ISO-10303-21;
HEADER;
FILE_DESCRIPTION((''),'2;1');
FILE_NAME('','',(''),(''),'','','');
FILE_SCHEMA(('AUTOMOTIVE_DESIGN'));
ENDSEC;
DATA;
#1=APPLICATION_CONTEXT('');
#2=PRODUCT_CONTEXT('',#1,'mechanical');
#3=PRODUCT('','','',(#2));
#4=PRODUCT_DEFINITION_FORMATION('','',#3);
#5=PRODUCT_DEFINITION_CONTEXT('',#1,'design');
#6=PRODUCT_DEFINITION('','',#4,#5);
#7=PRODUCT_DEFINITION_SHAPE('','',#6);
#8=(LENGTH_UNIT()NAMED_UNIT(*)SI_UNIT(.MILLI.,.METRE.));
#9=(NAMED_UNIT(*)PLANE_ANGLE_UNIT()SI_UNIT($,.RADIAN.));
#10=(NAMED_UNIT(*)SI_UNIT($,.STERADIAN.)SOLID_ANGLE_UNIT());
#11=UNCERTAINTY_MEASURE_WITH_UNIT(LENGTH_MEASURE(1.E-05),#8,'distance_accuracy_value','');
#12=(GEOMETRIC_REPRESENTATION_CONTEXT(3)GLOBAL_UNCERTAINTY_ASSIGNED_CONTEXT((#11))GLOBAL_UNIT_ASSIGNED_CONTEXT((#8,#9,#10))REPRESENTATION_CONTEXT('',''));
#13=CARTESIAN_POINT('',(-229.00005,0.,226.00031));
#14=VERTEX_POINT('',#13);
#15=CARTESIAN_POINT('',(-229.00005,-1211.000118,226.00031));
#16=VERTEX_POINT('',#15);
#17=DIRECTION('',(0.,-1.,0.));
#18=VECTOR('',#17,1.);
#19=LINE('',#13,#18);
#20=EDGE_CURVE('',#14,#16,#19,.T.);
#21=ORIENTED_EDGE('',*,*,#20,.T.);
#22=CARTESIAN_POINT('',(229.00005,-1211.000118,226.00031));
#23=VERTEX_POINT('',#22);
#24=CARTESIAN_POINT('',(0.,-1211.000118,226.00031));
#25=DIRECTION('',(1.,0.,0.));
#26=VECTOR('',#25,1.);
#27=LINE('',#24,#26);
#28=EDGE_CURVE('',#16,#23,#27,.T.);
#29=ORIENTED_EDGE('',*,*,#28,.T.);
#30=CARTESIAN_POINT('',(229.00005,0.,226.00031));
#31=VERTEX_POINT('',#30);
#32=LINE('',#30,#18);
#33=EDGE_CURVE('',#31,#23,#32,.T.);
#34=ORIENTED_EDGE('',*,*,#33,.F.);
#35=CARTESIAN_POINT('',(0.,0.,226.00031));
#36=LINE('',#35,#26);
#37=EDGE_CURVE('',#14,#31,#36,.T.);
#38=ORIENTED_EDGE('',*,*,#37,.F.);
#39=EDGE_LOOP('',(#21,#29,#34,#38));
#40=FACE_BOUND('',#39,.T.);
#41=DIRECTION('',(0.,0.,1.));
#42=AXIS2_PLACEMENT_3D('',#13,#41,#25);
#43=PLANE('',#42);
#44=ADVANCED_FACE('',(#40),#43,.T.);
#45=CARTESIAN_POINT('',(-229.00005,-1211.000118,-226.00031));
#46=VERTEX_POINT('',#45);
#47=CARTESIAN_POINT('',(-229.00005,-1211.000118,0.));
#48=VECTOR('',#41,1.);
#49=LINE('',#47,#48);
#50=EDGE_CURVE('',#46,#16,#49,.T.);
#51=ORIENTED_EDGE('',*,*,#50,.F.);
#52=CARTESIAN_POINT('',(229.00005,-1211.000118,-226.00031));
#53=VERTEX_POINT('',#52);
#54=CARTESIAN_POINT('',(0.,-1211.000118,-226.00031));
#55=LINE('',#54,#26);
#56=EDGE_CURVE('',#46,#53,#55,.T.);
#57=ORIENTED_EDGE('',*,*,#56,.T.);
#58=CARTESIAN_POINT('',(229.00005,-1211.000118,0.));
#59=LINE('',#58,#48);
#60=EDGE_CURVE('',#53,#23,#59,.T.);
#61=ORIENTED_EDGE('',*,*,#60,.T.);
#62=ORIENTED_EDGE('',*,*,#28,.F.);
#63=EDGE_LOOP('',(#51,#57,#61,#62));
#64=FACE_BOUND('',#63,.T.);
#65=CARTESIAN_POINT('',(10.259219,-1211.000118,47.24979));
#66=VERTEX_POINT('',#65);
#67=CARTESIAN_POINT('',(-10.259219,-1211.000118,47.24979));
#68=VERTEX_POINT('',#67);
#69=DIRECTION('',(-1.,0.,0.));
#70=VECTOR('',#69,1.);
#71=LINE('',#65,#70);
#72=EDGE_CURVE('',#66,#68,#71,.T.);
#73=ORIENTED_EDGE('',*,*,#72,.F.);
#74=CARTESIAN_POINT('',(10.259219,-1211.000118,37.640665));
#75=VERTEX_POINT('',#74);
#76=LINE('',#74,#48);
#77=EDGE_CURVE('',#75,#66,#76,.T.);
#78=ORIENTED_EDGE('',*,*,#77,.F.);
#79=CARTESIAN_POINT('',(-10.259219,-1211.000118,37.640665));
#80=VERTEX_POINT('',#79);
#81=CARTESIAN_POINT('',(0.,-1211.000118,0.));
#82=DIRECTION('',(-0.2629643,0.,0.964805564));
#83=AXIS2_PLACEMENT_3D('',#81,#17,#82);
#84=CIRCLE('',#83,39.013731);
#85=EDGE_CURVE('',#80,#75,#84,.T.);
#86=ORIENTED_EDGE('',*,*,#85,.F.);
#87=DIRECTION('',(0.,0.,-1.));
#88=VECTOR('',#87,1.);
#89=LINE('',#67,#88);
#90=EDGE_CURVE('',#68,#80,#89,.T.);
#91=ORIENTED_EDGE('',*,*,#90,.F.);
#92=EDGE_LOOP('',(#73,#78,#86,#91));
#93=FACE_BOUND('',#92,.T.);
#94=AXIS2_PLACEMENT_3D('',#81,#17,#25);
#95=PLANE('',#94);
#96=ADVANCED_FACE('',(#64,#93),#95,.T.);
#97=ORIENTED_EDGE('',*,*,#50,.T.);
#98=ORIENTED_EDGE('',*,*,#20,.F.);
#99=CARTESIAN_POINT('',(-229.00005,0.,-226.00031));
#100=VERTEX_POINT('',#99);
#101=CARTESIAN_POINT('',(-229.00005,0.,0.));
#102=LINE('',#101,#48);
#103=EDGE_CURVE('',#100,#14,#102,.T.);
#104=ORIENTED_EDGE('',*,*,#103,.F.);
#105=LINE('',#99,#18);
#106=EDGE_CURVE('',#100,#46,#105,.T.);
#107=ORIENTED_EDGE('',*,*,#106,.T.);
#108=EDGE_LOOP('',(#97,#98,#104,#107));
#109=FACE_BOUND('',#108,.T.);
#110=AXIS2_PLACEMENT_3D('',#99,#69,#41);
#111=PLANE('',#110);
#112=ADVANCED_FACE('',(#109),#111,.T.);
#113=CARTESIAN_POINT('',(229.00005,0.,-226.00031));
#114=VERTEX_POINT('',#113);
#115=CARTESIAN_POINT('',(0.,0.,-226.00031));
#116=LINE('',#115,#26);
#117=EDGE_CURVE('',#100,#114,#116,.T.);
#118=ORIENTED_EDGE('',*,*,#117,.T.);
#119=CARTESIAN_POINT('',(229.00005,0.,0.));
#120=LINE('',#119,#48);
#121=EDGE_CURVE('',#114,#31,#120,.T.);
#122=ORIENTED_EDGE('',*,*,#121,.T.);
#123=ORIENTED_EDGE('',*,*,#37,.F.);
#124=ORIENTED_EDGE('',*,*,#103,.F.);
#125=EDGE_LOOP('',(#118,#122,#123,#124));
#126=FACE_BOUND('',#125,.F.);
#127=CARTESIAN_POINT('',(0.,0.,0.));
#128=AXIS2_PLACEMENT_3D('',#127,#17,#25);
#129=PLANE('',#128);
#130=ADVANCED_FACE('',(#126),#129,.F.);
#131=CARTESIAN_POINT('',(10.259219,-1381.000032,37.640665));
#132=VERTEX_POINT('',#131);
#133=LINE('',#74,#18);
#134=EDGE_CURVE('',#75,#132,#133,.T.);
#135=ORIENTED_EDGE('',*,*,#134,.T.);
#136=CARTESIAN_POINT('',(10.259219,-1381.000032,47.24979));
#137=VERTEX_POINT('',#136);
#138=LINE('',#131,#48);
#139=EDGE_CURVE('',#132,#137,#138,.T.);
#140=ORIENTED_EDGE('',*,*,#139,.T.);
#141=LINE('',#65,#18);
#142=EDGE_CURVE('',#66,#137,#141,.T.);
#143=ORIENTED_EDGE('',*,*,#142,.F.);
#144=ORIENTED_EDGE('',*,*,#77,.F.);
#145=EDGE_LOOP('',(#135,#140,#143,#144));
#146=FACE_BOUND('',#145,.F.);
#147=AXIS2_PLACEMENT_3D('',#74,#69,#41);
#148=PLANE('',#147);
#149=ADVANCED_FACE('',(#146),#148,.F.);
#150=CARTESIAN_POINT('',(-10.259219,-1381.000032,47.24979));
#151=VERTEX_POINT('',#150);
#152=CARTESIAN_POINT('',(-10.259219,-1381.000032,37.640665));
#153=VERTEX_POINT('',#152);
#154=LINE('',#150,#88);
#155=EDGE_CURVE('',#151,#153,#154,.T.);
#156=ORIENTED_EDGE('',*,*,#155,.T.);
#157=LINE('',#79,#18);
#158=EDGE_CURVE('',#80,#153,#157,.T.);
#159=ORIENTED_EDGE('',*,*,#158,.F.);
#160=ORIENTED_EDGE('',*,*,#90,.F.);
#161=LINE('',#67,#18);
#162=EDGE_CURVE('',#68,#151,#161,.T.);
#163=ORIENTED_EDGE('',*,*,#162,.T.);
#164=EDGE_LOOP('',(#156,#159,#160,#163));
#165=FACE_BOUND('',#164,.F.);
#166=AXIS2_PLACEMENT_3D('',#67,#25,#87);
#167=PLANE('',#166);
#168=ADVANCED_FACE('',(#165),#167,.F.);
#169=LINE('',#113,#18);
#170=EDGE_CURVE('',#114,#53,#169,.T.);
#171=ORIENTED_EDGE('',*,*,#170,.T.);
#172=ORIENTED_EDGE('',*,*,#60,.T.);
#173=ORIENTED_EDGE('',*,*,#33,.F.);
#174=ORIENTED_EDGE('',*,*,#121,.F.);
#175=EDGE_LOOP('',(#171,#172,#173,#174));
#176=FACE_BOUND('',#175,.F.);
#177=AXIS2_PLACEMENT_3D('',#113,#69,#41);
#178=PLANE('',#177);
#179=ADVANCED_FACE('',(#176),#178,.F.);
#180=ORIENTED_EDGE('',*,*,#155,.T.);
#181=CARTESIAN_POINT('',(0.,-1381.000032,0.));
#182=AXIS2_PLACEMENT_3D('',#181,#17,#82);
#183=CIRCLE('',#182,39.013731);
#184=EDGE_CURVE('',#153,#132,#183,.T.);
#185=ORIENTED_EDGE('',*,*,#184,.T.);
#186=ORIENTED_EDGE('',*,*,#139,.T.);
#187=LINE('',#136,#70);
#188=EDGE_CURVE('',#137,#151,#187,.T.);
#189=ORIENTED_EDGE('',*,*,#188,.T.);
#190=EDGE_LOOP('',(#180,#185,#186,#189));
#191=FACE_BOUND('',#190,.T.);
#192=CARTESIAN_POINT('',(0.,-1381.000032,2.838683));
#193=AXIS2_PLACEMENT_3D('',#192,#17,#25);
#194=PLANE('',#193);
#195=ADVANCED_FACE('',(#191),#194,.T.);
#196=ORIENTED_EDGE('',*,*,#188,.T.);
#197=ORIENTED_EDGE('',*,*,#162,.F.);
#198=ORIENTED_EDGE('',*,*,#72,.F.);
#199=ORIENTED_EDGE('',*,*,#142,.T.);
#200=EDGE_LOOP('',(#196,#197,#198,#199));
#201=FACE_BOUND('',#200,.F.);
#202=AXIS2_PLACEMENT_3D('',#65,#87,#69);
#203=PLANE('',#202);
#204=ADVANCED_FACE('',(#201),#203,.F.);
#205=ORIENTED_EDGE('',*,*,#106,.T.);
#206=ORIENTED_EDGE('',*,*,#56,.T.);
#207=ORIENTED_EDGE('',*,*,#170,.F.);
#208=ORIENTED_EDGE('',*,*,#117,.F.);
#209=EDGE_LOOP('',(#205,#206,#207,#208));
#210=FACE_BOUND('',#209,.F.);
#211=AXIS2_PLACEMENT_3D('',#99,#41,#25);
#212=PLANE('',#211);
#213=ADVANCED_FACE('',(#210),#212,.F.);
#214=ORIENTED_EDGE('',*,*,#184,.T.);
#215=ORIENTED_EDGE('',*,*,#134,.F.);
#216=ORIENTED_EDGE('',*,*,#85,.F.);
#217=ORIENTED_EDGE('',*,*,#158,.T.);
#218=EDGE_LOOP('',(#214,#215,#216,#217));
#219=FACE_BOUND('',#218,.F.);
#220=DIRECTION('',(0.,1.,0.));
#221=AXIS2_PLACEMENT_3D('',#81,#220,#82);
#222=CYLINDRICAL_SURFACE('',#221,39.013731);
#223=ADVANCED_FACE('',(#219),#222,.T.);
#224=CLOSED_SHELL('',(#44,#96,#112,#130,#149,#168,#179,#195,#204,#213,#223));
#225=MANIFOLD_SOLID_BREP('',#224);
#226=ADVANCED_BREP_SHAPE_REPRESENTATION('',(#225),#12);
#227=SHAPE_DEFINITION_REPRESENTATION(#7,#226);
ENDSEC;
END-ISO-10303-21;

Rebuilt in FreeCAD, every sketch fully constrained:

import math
import FreeCAD as App
import Part
import Sketcher
from FreeCAD import Vector

doc = App.newDocument("Part")
params = doc.addObject("Spreadsheet::Sheet", "Params")
for row, (alias, value) in enumerate([
    ("pad1_length", "1211.000118 mm"),
    ("pad2_length", "169.999914 mm"),
], start=1):
    params.set(f"A{row}", alias)
    params.set(f"B{row}", "=" + value)
    params.setAlias(f"B{row}", alias)

body = doc.addObject("PartDesign::Body", "Body")

sketch1 = doc.addObject("Sketcher::SketchObject", "Sketch")
body.addObject(sketch1)
sketch1.AttachmentSupport = (doc.XZ_Plane, [""])
sketch1.MapMode = "FlatFace"
sketch1.addGeometry([
    Part.LineSegment(Vector(-229.00005, 226.00031, 0), Vector(-229.00005, -226.00031, 0)),
    Part.LineSegment(Vector(-229.00005, -226.00031, 0), Vector(229.00005, -226.00031, 0)),
    Part.LineSegment(Vector(229.00005, -226.00031, 0), Vector(229.00005, 226.00031, 0)),
    Part.LineSegment(Vector(229.00005, 226.00031, 0), Vector(-229.00005, 226.00031, 0)),
], False)
sketch1.addConstraint([
    Sketcher.Constraint("Coincident", 0, 2, 1, 1),
    Sketcher.Constraint("Coincident", 1, 2, 2, 1),
    Sketcher.Constraint("Coincident", 2, 2, 3, 1),
    Sketcher.Constraint("Coincident", 3, 2, 0, 1),
    Sketcher.Constraint("Vertical", 0),
    Sketcher.Constraint("Horizontal", 1),
    Sketcher.Constraint("Vertical", 2),
    Sketcher.Constraint("Horizontal", 3),
    Sketcher.Constraint("Symmetric", 0, 2, 2, 2, -1, 1),
    Sketcher.Constraint("DistanceX", 1, 1, 1, 2, 458.0001),
    Sketcher.Constraint("DistanceY", 0, 2, 0, 1, 452.00062),
])
pad1 = doc.addObject("PartDesign::Pad", "Pad")
body.addObject(pad1)
pad1.Profile = sketch1
pad1.setExpression("Length", "Params.pad1_length")

sketch2 = doc.addObject("Sketcher::SketchObject", "Sketch001")
body.addObject(sketch2)
sketch2.AttachmentSupport = (doc.XZ_Plane, [""])
sketch2.MapMode = "FlatFace"
sketch2.AttachmentOffset = App.Placement(Vector(0, 0, 1211.000118), App.Rotation())
sketch2.addGeometry([
    Part.ArcOfCircle(Part.Circle(Vector(0, 0, 0), Vector(0, 0, 1), 39), math.radians(105), math.radians(435)),
    Part.LineSegment(Vector(10, 38, 0), Vector(10, 47, 0)),
    Part.LineSegment(Vector(10, 47, 0), Vector(-10, 47, 0)),
    Part.LineSegment(Vector(-10, 47, 0), Vector(-10, 38, 0)),
], False)
sketch2.addConstraint([
    Sketcher.Constraint("Coincident", 0, 2, 1, 1),
    Sketcher.Constraint("Coincident", 1, 2, 2, 1),
    Sketcher.Constraint("Coincident", 2, 2, 3, 1),
    Sketcher.Constraint("Coincident", 3, 2, 0, 1),
    Sketcher.Constraint("Vertical", 1),
    Sketcher.Constraint("Horizontal", 2),
    Sketcher.Constraint("Vertical", 3),
    Sketcher.Constraint("Coincident", 0, 3, -1, 1),
    Sketcher.Constraint("Horizontal", 0, 2, 3, 2),
    Sketcher.Constraint("Radius", 0, 39.013731),
    Sketcher.Constraint("DistanceX", 2, 2, 2, 1, 20.518437),
    Sketcher.Constraint("DistanceY", 1, 1, 1, 2, 9.609125),
])
pad2 = doc.addObject("PartDesign::Pad", "Pad001")
body.addObject(pad2)
pad2.Profile = sketch2
pad2.setExpression("Length", "Params.pad2_length")

doc.recompute()
